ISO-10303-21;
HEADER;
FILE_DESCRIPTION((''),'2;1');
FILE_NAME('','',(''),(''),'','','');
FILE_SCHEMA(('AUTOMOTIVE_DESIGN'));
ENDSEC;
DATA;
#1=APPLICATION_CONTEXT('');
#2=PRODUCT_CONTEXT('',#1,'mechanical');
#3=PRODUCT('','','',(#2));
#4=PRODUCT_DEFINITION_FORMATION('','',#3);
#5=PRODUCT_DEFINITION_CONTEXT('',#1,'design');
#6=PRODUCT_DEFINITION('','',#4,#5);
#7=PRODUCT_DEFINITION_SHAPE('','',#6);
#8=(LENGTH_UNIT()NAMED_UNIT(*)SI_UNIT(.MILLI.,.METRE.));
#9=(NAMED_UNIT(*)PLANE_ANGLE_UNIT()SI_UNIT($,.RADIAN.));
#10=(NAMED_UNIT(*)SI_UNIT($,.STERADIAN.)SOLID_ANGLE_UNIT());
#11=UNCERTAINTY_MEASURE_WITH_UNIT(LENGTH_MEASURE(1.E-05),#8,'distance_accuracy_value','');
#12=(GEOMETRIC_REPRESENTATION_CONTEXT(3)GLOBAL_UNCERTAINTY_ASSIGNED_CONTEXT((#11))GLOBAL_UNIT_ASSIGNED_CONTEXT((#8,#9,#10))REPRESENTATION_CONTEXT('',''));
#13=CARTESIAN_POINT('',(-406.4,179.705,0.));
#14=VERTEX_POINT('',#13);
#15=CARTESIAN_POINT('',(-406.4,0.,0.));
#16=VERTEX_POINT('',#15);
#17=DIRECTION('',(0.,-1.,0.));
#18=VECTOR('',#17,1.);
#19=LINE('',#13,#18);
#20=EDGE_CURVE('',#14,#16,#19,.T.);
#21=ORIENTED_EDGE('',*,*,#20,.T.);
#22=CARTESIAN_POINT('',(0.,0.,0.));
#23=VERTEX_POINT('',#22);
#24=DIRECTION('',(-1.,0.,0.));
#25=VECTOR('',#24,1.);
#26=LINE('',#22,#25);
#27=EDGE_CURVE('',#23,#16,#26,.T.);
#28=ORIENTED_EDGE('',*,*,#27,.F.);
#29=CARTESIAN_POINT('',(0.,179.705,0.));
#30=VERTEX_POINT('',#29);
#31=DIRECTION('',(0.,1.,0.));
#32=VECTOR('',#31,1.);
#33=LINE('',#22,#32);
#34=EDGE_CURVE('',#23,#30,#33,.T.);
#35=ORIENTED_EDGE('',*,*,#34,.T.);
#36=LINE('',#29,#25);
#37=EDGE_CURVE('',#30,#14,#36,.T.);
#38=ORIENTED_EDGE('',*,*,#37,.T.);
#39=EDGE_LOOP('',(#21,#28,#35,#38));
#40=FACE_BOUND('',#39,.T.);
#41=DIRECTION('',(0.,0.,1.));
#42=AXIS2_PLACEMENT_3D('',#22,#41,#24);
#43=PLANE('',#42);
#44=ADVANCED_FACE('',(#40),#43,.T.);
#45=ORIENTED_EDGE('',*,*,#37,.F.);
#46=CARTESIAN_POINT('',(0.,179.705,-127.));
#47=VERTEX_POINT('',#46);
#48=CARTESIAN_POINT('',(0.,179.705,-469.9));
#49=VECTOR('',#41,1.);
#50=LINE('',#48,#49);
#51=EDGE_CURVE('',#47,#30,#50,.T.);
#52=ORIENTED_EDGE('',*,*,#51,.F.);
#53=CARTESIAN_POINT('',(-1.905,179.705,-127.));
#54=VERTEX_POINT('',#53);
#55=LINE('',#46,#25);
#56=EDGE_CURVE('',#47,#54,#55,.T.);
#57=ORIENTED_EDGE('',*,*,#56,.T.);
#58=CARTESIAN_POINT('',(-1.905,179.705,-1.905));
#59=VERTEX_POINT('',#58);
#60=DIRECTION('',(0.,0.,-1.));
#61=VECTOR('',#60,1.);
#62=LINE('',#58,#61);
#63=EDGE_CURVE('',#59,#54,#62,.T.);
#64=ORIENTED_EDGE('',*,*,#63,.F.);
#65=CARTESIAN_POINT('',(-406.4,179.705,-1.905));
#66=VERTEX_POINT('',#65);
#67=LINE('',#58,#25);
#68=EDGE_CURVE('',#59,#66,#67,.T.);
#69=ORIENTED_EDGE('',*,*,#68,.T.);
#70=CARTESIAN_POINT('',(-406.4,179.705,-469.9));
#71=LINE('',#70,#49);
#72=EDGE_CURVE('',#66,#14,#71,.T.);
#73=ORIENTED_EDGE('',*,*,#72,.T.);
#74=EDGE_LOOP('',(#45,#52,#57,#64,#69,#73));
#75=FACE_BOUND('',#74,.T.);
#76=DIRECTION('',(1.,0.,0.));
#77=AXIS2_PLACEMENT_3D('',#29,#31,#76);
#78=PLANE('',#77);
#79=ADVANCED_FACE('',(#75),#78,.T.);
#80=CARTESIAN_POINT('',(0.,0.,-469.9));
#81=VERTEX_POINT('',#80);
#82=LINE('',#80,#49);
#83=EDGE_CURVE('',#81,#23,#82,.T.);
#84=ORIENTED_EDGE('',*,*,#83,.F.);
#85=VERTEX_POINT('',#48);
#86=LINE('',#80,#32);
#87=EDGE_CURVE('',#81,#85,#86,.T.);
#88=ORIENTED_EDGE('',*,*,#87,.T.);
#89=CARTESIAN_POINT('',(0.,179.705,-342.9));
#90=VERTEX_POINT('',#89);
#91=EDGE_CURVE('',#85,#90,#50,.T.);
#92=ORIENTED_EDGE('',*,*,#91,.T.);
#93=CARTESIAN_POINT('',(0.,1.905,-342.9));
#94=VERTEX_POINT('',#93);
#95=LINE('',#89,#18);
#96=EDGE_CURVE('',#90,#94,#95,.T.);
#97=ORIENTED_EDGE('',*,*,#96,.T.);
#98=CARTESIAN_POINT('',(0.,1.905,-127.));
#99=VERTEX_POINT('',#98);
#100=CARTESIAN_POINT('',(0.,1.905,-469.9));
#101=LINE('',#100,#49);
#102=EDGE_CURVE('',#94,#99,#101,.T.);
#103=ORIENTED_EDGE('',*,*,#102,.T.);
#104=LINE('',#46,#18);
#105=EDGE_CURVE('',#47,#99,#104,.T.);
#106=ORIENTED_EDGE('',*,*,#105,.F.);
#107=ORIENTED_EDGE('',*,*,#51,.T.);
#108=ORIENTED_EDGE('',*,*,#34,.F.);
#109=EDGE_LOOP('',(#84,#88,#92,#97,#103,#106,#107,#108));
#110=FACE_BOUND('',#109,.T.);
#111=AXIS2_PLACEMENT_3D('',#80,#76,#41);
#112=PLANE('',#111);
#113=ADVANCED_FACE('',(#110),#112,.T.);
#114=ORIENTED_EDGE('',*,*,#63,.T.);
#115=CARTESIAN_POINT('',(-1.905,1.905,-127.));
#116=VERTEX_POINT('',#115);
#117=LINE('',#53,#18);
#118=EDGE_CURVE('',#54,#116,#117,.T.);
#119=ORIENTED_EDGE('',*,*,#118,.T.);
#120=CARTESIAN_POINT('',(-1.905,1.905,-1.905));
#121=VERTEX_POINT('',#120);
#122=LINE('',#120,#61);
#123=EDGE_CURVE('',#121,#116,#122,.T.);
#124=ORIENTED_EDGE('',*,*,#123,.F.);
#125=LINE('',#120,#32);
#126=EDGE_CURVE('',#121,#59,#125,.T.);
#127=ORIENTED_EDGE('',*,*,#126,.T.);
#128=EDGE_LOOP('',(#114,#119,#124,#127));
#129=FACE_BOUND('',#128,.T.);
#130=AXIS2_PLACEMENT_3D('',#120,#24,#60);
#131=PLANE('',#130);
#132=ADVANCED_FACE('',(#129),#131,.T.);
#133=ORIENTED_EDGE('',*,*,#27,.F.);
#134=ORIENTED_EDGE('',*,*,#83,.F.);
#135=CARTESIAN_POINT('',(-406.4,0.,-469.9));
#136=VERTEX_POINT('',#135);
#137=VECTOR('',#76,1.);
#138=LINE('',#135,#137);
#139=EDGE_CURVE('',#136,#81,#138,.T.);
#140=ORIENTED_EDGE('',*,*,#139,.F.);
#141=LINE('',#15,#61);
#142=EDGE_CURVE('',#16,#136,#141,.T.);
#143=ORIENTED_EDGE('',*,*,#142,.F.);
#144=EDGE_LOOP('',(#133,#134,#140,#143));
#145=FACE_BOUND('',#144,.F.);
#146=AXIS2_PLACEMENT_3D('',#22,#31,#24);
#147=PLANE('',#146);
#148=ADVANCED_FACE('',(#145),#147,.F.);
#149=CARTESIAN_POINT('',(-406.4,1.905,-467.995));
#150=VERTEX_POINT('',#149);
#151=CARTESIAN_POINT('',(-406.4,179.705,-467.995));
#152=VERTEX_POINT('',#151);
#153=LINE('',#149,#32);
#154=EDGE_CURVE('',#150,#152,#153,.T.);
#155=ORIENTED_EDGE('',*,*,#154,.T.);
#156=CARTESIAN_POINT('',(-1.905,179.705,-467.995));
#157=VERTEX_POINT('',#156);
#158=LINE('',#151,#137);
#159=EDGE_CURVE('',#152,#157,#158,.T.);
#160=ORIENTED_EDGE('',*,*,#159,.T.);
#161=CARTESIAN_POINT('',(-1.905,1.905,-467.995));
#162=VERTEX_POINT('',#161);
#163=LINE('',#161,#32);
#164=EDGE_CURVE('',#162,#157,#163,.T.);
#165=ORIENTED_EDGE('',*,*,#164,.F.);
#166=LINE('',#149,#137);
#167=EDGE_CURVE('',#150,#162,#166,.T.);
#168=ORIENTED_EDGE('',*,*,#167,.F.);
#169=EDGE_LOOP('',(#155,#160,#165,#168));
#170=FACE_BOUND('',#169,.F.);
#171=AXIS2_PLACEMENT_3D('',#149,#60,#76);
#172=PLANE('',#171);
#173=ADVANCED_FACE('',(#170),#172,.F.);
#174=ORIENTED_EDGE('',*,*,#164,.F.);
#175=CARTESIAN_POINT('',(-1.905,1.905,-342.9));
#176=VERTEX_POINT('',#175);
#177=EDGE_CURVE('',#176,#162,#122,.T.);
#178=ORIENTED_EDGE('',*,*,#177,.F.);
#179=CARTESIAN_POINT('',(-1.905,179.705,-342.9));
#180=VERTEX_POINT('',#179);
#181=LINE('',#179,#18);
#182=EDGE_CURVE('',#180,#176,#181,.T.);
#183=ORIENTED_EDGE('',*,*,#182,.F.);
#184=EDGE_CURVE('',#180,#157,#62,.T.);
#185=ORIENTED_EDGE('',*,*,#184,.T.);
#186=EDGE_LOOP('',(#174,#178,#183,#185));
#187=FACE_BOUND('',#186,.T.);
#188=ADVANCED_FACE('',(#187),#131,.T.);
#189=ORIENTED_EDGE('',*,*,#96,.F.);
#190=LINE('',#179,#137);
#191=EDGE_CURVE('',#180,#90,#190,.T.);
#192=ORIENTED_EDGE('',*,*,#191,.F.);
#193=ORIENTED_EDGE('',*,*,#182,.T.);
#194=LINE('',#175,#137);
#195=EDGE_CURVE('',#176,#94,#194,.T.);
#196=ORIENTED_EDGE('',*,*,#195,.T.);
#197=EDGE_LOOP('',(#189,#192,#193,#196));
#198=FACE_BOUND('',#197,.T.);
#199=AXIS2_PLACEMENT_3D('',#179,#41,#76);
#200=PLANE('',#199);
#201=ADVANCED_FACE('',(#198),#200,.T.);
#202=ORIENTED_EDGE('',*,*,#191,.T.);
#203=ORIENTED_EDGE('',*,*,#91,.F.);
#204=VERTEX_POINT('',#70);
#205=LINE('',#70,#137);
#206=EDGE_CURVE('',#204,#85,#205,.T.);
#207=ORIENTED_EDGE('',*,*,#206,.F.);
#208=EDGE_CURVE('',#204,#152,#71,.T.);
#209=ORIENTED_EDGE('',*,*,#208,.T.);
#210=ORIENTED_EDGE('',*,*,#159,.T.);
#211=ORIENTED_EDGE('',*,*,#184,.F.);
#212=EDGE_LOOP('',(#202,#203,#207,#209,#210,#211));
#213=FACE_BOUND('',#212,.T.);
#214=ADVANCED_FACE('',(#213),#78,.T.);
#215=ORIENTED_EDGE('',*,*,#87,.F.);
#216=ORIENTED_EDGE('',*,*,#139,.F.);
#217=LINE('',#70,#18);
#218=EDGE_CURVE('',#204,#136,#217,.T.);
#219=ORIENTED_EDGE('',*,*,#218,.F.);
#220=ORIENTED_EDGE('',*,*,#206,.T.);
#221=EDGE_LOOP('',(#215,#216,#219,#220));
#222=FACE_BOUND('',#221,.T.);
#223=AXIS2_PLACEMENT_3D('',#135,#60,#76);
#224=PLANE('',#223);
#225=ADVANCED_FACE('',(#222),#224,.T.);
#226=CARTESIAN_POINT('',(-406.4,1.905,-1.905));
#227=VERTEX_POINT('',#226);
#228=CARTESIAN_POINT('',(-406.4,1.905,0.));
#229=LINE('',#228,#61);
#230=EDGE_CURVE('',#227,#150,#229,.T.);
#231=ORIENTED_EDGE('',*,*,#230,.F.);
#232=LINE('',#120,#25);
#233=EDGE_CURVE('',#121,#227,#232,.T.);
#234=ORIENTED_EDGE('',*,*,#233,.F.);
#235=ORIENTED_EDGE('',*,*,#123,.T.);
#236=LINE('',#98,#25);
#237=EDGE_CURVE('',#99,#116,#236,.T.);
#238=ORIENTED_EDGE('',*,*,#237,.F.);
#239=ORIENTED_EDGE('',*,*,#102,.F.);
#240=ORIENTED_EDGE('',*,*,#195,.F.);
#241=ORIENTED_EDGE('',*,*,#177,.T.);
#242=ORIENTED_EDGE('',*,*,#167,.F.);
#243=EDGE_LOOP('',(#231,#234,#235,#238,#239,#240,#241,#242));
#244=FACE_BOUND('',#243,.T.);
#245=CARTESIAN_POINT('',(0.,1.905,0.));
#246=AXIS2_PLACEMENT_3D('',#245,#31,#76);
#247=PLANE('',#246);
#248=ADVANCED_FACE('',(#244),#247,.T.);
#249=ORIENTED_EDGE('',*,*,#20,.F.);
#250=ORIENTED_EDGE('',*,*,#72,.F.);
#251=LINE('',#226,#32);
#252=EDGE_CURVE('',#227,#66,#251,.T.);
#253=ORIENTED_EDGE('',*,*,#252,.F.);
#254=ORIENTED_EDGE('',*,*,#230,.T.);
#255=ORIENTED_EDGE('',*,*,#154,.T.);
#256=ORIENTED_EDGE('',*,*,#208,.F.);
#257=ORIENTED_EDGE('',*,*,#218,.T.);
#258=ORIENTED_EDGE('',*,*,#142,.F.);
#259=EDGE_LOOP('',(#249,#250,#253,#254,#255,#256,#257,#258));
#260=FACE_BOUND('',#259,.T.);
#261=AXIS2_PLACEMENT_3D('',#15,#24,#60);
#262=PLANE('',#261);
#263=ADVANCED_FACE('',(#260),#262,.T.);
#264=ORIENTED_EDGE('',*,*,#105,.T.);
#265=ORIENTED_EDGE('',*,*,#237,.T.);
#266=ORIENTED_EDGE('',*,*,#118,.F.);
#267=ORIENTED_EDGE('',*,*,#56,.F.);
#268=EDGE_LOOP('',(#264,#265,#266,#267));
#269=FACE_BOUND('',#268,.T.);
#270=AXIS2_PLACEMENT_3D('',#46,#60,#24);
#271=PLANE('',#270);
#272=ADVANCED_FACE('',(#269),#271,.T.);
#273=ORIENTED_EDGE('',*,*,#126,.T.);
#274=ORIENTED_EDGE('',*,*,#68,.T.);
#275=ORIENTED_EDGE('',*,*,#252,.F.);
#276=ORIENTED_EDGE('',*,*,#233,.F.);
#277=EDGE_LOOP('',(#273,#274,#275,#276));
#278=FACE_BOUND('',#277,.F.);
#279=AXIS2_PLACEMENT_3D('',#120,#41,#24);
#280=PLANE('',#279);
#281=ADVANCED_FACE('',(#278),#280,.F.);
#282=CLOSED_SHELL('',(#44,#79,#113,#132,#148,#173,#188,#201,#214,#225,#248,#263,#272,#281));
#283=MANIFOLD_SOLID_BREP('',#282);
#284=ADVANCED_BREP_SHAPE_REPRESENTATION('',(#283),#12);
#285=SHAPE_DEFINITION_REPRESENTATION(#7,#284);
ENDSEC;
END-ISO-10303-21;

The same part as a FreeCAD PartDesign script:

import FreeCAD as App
import Part
import Sketcher
from FreeCAD import Vector
Q = App.Units.Quantity

doc = App.newDocument("Part")
params = doc.addObject("Spreadsheet::Sheet", "Params")
for row, (alias, value) in enumerate([
    ("sketch1_width", "16 in"),
    ("sketch1_height", "18.5 in"),
    ("pad1_length", "0.075 in"),
    ("sketch2_width", "16 in"),
    ("sketch2_height", "0.075 in"),
    ("sketch2_height2", "18.5 in"),
    ("pad2_length", "7 in"),
    ("sketch3_height", "8.5 in"),
    ("sketch3_width", "0.075 in"),
    ("pocket1_length", "7 in"),
], start=1):
    params.set(f"A{row}", alias)
    params.set(f"B{row}", "=" + value)
    params.setAlias(f"B{row}", alias)

body = doc.addObject("PartDesign::Body", "Body")

sketch1 = doc.addObject("Sketcher::SketchObject", "Sketch")
body.addObject(sketch1)
sketch1.AttachmentSupport = (doc.XZ_Plane, [""])
sketch1.MapMode = "FlatFace"
sketch1.addGeometry(Part.LineSegment(Vector(-406, 0, 0), Vector(0, 0, 0)), False)
sketch1.addGeometry(Part.LineSegment(Vector(0, 0, 0), Vector(0, -470, 0)), False)
sketch1.addGeometry(Part.LineSegment(Vector(0, -470, 0), Vector(-406, -470, 0)), False)
sketch1.addGeometry(Part.LineSegment(Vector(-406, -470, 0), Vector(-406, 0, 0)), False)
sketch1.addConstraint(Sketcher.Constraint("Coincident", 0, 2, 1, 1))
sketch1.addConstraint(Sketcher.Constraint("Coincident", 1, 2, 2, 1))
sketch1.addConstraint(Sketcher.Constraint("Coincident", 2, 2, 3, 1))
sketch1.addConstraint(Sketcher.Constraint("Coincident", 3, 2, 0, 1))
sketch1.addConstraint(Sketcher.Constraint("Horizontal", 0))
sketch1.addConstraint(Sketcher.Constraint("Vertical", 1))
sketch1.addConstraint(Sketcher.Constraint("Horizontal", 2))
sketch1.addConstraint(Sketcher.Constraint("Vertical", 3))
sketch1.addConstraint(Sketcher.Constraint("Coincident", 0, 2, -1, 1))
sketch1.addConstraint(Sketcher.Constraint("DistanceX", 0, 1, 0, 2, Q("16 in")))
sketch1.addConstraint(Sketcher.Constraint("DistanceY", 1, 2, 1, 1, Q("18.5 in")))
sketch1.setExpression("Constraints[9]", "Params.sketch1_width")
sketch1.setExpression("Constraints[10]", "Params.sketch1_height")
pad1 = doc.addObject("PartDesign::Pad", "Pad")
body.addObject(pad1)
pad1.Profile = sketch1
pad1.setExpression("Length", "Params.pad1_length")
pad1.Reversed = True

sketch2 = doc.addObject("Sketcher::SketchObject", "Sketch001")
body.addObject(sketch2)
sketch2.AttachmentSupport = (doc.XZ_Plane, [""])
sketch2.MapMode = "FlatFace"
sketch2.AttachmentOffset = App.Placement(Vector(0, 0, -0.075 * 25.4), App.Rotation())
sketch2.addGeometry(Part.LineSegment(Vector(0, -469.9, 0), Vector(-406.4, -469.9, 0)), False)
sketch2.addGeometry(Part.LineSegment(Vector(-406.4, -469.9, 0), Vector(-406.4, -468, 0)), False)
sketch2.addGeometry(Part.LineSegment(Vector(-406.4, -468, 0), Vector(-1.9, -468, 0)), False)
sketch2.addGeometry(Part.LineSegment(Vector(-1.9, -468, 0), Vector(-1.9, -1.9, 0)), False)
sketch2.addGeometry(Part.LineSegment(Vector(-1.9, -1.9, 0), Vector(-406.4, -1.9, 0)), False)
sketch2.addGeometry(Part.LineSegment(Vector(-406.4, -1.9, 0), Vector(-406.4, 0, 0)), False)
sketch2.addGeometry(Part.LineSegment(Vector(-406.4, 0, 0), Vector(0, 0, 0)), False)
sketch2.addGeometry(Part.LineSegment(Vector(0, 0, 0), Vector(0, -469.9, 0)), False)
sketch2.addConstraint(Sketcher.Constraint("Coincident", 0, 2, 1, 1))
sketch2.addConstraint(Sketcher.Constraint("Coincident", 1, 2, 2, 1))
sketch2.addConstraint(Sketcher.Constraint("Coincident", 2, 2, 3, 1))
sketch2.addConstraint(Sketcher.Constraint("Coincident", 3, 2, 4, 1))
sketch2.addConstraint(Sketcher.Constraint("Coincident", 4, 2, 5, 1))
sketch2.addConstraint(Sketcher.Constraint("Coincident", 5, 2, 6, 1))
sketch2.addConstraint(Sketcher.Constraint("Coincident", 6, 2, 7, 1))
sketch2.addConstraint(Sketcher.Constraint("Coincident", 7, 2, 0, 1))
sketch2.addConstraint(Sketcher.Constraint("Horizontal", 0))
sketch2.addConstraint(Sketcher.Constraint("Vertical", 1))
sketch2.addConstraint(Sketcher.Constraint("Horizontal", 2))
sketch2.addConstraint(Sketcher.Constraint("Vertical", 3))
sketch2.addConstraint(Sketcher.Constraint("Horizontal", 4))
sketch2.addConstraint(Sketcher.Constraint("Vertical", 5))
sketch2.addConstraint(Sketcher.Constraint("Horizontal", 6))
sketch2.addConstraint(Sketcher.Constraint("Vertical", 7))
sketch2.addConstraint(Sketcher.Constraint("Coincident", 6, 2, -1, 1))
sketch2.addConstraint(Sketcher.Constraint("Vertical", 1, 2, 4, 2))
sketch2.addConstraint(Sketcher.Constraint("Equal", 1, 5))
sketch2.addConstraint(Sketcher.Constraint("DistanceX", 0, 2, 0, 1, Q("16 in")))
sketch2.addConstraint(Sketcher.Constraint("DistanceY", 1, 1, 1, 2, Q("0.075 in")))
sketch2.addConstraint(Sketcher.Constraint("DistanceY", 7, 2, 7, 1, Q("18.5 in")))
sketch2.addConstraint(Sketcher.Constraint("DistanceX", 2, 2, -1, 1, Q("0.075 in")))
sketch2.setExpression("Constraints[19]", "Params.sketch2_width")
sketch2.setExpression("Constraints[20]", "Params.sketch2_height")
sketch2.setExpression("Constraints[21]", "Params.sketch2_height2")
pad2 = doc.addObject("PartDesign::Pad", "Pad001")
body.addObject(pad2)
pad2.Profile = sketch2
pad2.setExpression("Length", "Params.pad2_length")
pad2.Reversed = True

sketch3 = doc.addObject("Sketcher::SketchObject", "Sketch002")
body.addObject(sketch3)
sketch3.AttachmentSupport = (doc.XZ_Plane, [""])
sketch3.MapMode = "FlatFace"
sketch3.AttachmentOffset = App.Placement(Vector(0, 0, -7.075 * 25.4), App.Rotation())
sketch3.addGeometry(Part.LineSegment(Vector(0, -342.9, 0), Vector(-1.9, -342.9, 0)), False)
sketch3.addGeometry(Part.LineSegment(Vector(-1.9, -342.9, 0), Vector(-1.9, -127, 0)), False)
sketch3.addGeometry(Part.LineSegment(Vector(-1.9, -127, 0), Vector(0, -127, 0)), False)
sketch3.addGeometry(Part.LineSegment(Vector(0, -127, 0), Vector(0, -342.9, 0)), False)
sketch3.addConstraint(Sketcher.Constraint("Coincident", 0, 2, 1, 1))
sketch3.addConstraint(Sketcher.Constraint("Coincident", 1, 2, 2, 1))
sketch3.addConstraint(Sketcher.Constraint("Coincident", 2, 2, 3, 1))
sketch3.addConstraint(Sketcher.Constraint("Coincident", 3, 2, 0, 1))
sketch3.addConstraint(Sketcher.Constraint("Horizontal", 0))
sketch3.addConstraint(Sketcher.Constraint("Vertical", 1))
sketch3.addConstraint(Sketcher.Constraint("Horizontal", 2))
sketch3.addConstraint(Sketcher.Constraint("Vertical", 3))
sketch3.addConstraint(Sketcher.Constraint("PointOnObject", 2, 2, -2))
sketch3.addConstraint(Sketcher.Constraint("DistanceY", 1, 2, -1, 1, Q("5 in")))
sketch3.addConstraint(Sketcher.Constraint("DistanceY", 1, 1, 1, 2, Q("8.5 in")))
sketch3.addConstraint(Sketcher.Constraint("DistanceX", 0, 2, 0, 1, Q("0.075 in")))
sketch3.setExpression("Constraints[10]", "Params.sketch3_height")
sketch3.setExpression("Constraints[11]", "Params.sketch3_width")
pocket1 = doc.addObject("PartDesign::Pocket", "Pocket")
body.addObject(pocket1)
pocket1.Profile = sketch3
pocket1.setExpression("Length", "Params.pocket1_length")
pocket1.Reversed = True

doc.recompute()
